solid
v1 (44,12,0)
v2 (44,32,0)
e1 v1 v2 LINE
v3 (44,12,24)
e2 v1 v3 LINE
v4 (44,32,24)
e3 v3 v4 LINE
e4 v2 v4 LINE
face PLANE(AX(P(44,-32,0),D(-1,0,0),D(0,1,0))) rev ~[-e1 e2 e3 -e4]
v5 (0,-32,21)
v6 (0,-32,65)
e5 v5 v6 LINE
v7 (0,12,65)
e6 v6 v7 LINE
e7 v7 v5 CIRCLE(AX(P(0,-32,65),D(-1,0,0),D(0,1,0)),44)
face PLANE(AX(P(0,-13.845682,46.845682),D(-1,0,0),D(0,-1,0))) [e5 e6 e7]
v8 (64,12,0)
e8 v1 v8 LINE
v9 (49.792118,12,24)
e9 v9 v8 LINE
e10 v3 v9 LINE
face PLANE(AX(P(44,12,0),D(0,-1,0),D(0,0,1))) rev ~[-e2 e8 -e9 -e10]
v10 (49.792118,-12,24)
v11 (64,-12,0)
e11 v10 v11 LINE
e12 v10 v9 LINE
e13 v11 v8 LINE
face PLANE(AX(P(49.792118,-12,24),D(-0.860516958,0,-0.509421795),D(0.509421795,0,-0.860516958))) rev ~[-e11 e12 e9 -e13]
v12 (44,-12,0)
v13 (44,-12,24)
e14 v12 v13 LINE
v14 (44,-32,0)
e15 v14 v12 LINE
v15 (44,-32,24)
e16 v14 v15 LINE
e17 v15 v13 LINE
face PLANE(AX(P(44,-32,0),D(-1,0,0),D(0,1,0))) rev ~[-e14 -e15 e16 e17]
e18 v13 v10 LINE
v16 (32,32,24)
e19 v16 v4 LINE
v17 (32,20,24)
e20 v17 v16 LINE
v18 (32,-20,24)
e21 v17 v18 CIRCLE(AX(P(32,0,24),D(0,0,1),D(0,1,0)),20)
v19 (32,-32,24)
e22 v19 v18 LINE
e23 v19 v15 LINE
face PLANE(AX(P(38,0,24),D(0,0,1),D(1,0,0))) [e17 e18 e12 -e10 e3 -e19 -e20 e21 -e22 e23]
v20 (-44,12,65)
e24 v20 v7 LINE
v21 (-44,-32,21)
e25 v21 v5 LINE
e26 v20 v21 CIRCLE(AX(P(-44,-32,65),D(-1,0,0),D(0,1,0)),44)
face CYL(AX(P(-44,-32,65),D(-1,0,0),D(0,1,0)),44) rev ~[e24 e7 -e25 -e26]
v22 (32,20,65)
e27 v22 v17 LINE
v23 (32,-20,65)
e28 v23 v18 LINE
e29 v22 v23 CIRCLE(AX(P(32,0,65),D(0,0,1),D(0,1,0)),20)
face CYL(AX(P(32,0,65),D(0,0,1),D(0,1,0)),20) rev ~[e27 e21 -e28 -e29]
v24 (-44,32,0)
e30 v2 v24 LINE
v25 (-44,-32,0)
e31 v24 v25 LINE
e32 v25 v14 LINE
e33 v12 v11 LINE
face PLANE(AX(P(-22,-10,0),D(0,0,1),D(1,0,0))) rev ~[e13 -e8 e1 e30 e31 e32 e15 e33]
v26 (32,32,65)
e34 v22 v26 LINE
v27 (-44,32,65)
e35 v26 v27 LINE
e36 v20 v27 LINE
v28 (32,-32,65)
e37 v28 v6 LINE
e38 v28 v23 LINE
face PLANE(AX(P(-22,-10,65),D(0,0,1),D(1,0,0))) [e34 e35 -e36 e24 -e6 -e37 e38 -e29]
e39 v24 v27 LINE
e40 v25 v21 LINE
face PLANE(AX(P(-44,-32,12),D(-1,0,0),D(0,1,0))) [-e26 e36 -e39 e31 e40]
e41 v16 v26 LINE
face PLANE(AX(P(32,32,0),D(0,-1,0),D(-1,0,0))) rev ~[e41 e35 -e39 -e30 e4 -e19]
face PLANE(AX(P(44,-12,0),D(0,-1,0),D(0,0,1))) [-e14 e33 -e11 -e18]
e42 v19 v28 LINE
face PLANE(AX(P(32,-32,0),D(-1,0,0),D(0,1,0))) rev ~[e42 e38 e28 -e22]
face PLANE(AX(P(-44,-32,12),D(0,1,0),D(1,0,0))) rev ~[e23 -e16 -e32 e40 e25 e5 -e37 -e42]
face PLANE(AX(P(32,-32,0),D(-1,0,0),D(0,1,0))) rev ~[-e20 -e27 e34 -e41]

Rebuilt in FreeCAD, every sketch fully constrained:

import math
import FreeCAD as App
import Part
import Sketcher
Q = App.Units.Quantity

doc = App.newDocument("Part")
params = doc.addObject("Spreadsheet::Sheet", "Params")
for row, (alias, value) in enumerate([
    ("sketch1_width", "12 mm"),
    ("sketch1_height", "64 mm"),
    ("pad1_length", "24 mm"),
    ("sketch2_width", "76 mm"),
    ("sketch2_width2", "44 mm"),
    ("sketch2_height", "64 mm"),
    ("pad2_length", "65 mm"),
    ("sketch3_width", "24 mm"),
    ("pad3_length", "20 mm"),
    ("sketch4_height", "24 mm"),
    ("pocket1_length", "37.6 mm"),
    ("sketch5_radius", "20 mm"),
    ("pocket2_length", "41 mm"),
    ("sketch6_width", "44 mm"),
    ("pad4_length", "12 mm"),
    ("sketch7_width", "44 mm"),
    ("pad5_length", "53 mm"),
    ("sketch8_radius", "44 mm"),
    ("pocket3_length", "44 mm"),
], start=1):
    params.set(f"A{row}", alias)
    params.set(f"B{row}", "=" + value)
    params.setAlias(f"B{row}", alias)

body = doc.addObject("PartDesign::Body", "Body")

sketch1 = body.newObject("Sketcher::SketchObject", "Sketch")
sketch1.AttachmentSupport = (doc.getObject("XY_Plane"), [""])
sketch1.MapMode = "FlatFace"
sketch1.addGeometry([
    Part.LineSegment(App.Vector(32, 32, 0), App.Vector(32, -32, 0)),
    Part.LineSegment(App.Vector(32, -32, 0), App.Vector(44, -32, 0)),
    Part.LineSegment(App.Vector(44, -32, 0), App.Vector(44, 32, 0)),
    Part.LineSegment(App.Vector(44, 32, 0), App.Vector(32, 32, 0)),
], False)
sketch1.addConstraint([
    Sketcher.Constraint("Coincident", 0, 2, 1, 1),
    Sketcher.Constraint("Coincident", 1, 2, 2, 1),
    Sketcher.Constraint("Coincident", 2, 2, 3, 1),
    Sketcher.Constraint("Coincident", 3, 2, 0, 1),
    Sketcher.Constraint("Vertical", 0),
    Sketcher.Constraint("Horizontal", 1),
    Sketcher.Constraint("Vertical", 2),
    Sketcher.Constraint("Horizontal", 3),
    Sketcher.Constraint("DistanceX", 1, 1, 1, 2, Q("12 mm")),
    Sketcher.Constraint("DistanceY", 0, 2, 0, 1, Q("64 mm")),
    Sketcher.Constraint("DistanceX", -1, 1, 0, 2, Q("32 mm")),
    Sketcher.Constraint("DistanceY", 0, 2, -1, 1, Q("32 mm")),
])
sketch1.setExpression("Constraints[8]", "Params.sketch1_width")
sketch1.setExpression("Constraints[9]", "Params.sketch1_height")
pad1 = body.newObject("PartDesign::Pad", "Pad")
pad1.Profile = sketch1
pad1.setExpression("Length", "Params.pad1_length")

sketch2 = body.newObject("Sketcher::SketchObject", "Sketch001")
sketch2.AttachmentSupport = (doc.getObject("XY_Plane"), [""])
sketch2.MapMode = "FlatFace"
sketch2.addGeometry([
    Part.LineSegment(App.Vector(32, -32, 0), App.Vector(32, 32, 0)),
    Part.LineSegment(App.Vector(32, 32, 0), App.Vector(-44, 32, 0)),
    Part.LineSegment(App.Vector(-44, 32, 0), App.Vector(-44, 12, 0)),
    Part.LineSegment(App.Vector(-44, 12, 0), App.Vector(0, 12, 0)),
    Part.LineSegment(App.Vector(0, 12, 0), App.Vector(0, -32, 0)),
    Part.LineSegment(App.Vector(0, -32, 0), App.Vector(32, -32, 0)),
], False)
sketch2.addConstraint([
    Sketcher.Constraint("Coincident", 0, 2, 1, 1),
    Sketcher.Constraint("Coincident", 1, 2, 2, 1),
    Sketcher.Constraint("Coincident", 2, 2, 3, 1),
    Sketcher.Constraint("Coincident", 3, 2, 4, 1),
    Sketcher.Constraint("Coincident", 4, 2, 5, 1),
    Sketcher.Constraint("Coincident", 5, 2, 0, 1),
    Sketcher.Constraint("Vertical", 0),
    Sketcher.Constraint("Horizontal", 1),
    Sketcher.Constraint("Vertical", 2),
    Sketcher.Constraint("Horizontal", 3),
    Sketcher.Constraint("Vertical", 4),
    Sketcher.Constraint("Horizontal", 5),
    Sketcher.Constraint("PointOnObject", 3, 2, -2),
    Sketcher.Constraint("Equal", 3, 4),
    Sketcher.Constraint("DistanceX", 1, 2, 1, 1, Q("76 mm")),
    Sketcher.Constraint("DistanceX", 3, 1, 3, 2, Q("44 mm")),
    Sketcher.Constraint("DistanceY", 0, 1, 0, 2, Q("64 mm")),
    Sketcher.Constraint("DistanceY", -1, 1, 0, 2, Q("32 mm")),
])
sketch2.setExpression("Constraints[14]", "Params.sketch2_width")
sketch2.setExpression("Constraints[15]", "Params.sketch2_width2")
sketch2.setExpression("Constraints[16]", "Params.sketch2_height")
pad2 = body.newObject("PartDesign::Pad", "Pad001")
pad2.Profile = sketch2
pad2.setExpression("Length", "Params.pad2_length")

sketch3 = body.newObject("Sketcher::SketchObject", "Sketch002")
sketch3.AttachmentSupport = (doc.getObject("YZ_Plane"), [""])
sketch3.MapMode = "FlatFace"
sketch3.AttachmentOffset = App.Placement(App.Vector(0, 0, 44), App.Rotation())
sketch3.addGeometry([
    Part.LineSegment(App.Vector(-12, 24, 0), App.Vector(-12, 0, 0)),
    Part.LineSegment(App.Vector(-12, 0, 0), App.Vector(12, 0, 0)),
    Part.LineSegment(App.Vector(12, 0, 0), App.Vector(12, 24, 0)),
    Part.LineSegment(App.Vector(12, 24, 0), App.Vector(-12, 24, 0)),
], False)
sketch3.addConstraint([
    Sketcher.Constraint("Coincident", 0, 2, 1, 1),
    Sketcher.Constraint("Coincident", 1, 2, 2, 1),
    Sketcher.Constraint("Coincident", 2, 2, 3, 1),
    Sketcher.Constraint("Coincident", 3, 2, 0, 1),
    Sketcher.Constraint("Vertical", 0),
    Sketcher.Constraint("Horizontal", 1),
    Sketcher.Constraint("Vertical", 2),
    Sketcher.Constraint("Horizontal", 3),
    Sketcher.Constraint("Symmetric", 0, 2, 1, 2, -1, 1),
    Sketcher.Constraint("Equal", 3, 0),
    Sketcher.Constraint("DistanceX", 1, 1, 1, 2, Q("24 mm")),
])
sketch3.setExpression("Constraints[10]", "Params.sketch3_width")
pad3 = body.newObject("PartDesign::Pad", "Pad002")
pad3.Profile = sketch3
pad3.setExpression("Length", "Params.pad3_length")

sketch4 = body.newObject("Sketcher::SketchObject", "Sketch003")
sketch4.AttachmentSupport = (doc.getObject("XZ_Plane"), [""])
sketch4.MapMode = "FlatFace"
sketch4.AttachmentOffset = App.Placement(App.Vector(0, 0, 12), App.Rotation())
sketch4.addGeometry([
    Part.LineSegment(App.Vector(64, 24, 0), App.Vector(49.792118, 24, 0)),
    Part.LineSegment(App.Vector(49.792118, 24, 0), App.Vector(64, 0, 0)),
    Part.LineSegment(App.Vector(64, 0, 0), App.Vector(64, 24, 0)),
], False)
sketch4.addConstraint([
    Sketcher.Constraint("Coincident", 0, 2, 1, 1),
    Sketcher.Constraint("Coincident", 1, 2, 2, 1),
    Sketcher.Constraint("Coincident", 2, 2, 0, 1),
    Sketcher.Constraint("Horizontal", 0),
    Sketcher.Constraint("Vertical", 2),
    Sketcher.Constraint("PointOnObject", 1, 2, -1),
    Sketcher.Constraint("DistanceY", 2, 1, 2, 2, Q("24 mm")),
    Sketcher.Constraint("DistanceX", -1, 1, 1, 2, Q("64 mm")),
    Sketcher.Constraint("DistanceX", 0, 2, 0, 1, Q("14.207882 mm")),
])
sketch4.setExpression("Constraints[6]", "Params.sketch4_height")
pocket1 = body.newObject("PartDesign::Pocket", "Pocket")
pocket1.Profile = sketch4
pocket1.setExpression("Length", "Params.pocket1_length")

sketch5 = body.newObject("Sketcher::SketchObject", "Sketch004")
sketch5.AttachmentSupport = (doc.getObject("XY_Plane"), [""])
sketch5.MapMode = "FlatFace"
sketch5.AttachmentOffset = App.Placement(App.Vector(0, 0, 65), App.Rotation())
sketch5.addGeometry([
    Part.ArcOfCircle(Part.Circle(App.Vector(32, 0, 0), App.Vector(0, 0, 1), 20), math.radians(90), math.radians(270)),
    Part.LineSegment(App.Vector(32, -20, 0), App.Vector(32, 20, 0)),
], False)
sketch5.addConstraint([
    Sketcher.Constraint("Coincident", 0, 1, 1, 2),
    Sketcher.Constraint("Coincident", 1, 1, 0, 2),
    Sketcher.Constraint("Vertical", 1),
    Sketcher.Constraint("PointOnObject", 0, 3, -1),
    Sketcher.Constraint("Radius", 0, Q("20 mm")),
    Sketcher.Constraint("DistanceX", -1, 1, 0, 3, Q("32 mm")),
    Sketcher.Constraint("DistanceX", -1, 1, 0, 1, Q("32 mm")),
])
sketch5.setExpression("Constraints[4]", "Params.sketch5_radius")
pocket2 = body.newObject("PartDesign::Pocket", "Pocket001")
pocket2.Profile = sketch5
pocket2.setExpression("Length", "Params.pocket2_length")

sketch6 = body.newObject("Sketcher::SketchObject", "Sketch005")
sketch6.AttachmentSupport = (doc.getObject("XY_Plane"), [""])
sketch6.MapMode = "FlatFace"
sketch6.addGeometry([
    Part.LineSegment(App.Vector(-44, 12, 0), App.Vector(-44, -32, 0)),
    Part.LineSegment(App.Vector(-44, -32, 0), App.Vector(0, -32, 0)),
    Part.LineSegment(App.Vector(0, -32, 0), App.Vector(0, 12, 0)),
    Part.LineSegment(App.Vector(0, 12, 0), App.Vector(-44, 12, 0)),
], False)
sketch6.addConstraint([
    Sketcher.Constraint("Coincident", 0, 2, 1, 1),
    Sketcher.Constraint("Coincident", 1, 2, 2, 1),
    Sketcher.Constraint("Coincident", 2, 2, 3, 1),
    Sketcher.Constraint("Coincident", 3, 2, 0, 1),
    Sketcher.Constraint("Vertical", 0),
    Sketcher.Constraint("Horizontal", 1),
    Sketcher.Constraint("Vertical", 2),
    Sketcher.Constraint("Horizontal", 3),
    Sketcher.Constraint("PointOnObject", 1, 2, -2),
    Sketcher.Constraint("Equal", 3, 0),
    Sketcher.Constraint("DistanceX", 1, 1, 1, 2, Q("44 mm")),
    Sketcher.Constraint("DistanceY", 0, 2, -1, 1, Q("32 mm")),
])
sketch6.setExpression("Constraints[10]", "Params.sketch6_width")
pad4 = body.newObject("PartDesign::Pad", "Pad003")
pad4.Profile = sketch6
pad4.setExpression("Length", "Params.pad4_length")

sketch7 = body.newObject("Sketcher::SketchObject", "Sketch006")
sketch7.AttachmentSupport = (doc.getObject("XY_Plane"), [""])
sketch7.MapMode = "FlatFace"
sketch7.AttachmentOffset = App.Placement(App.Vector(0, 0, 12), App.Rotation())
sketch7.addGeometry([
    Part.LineSegment(App.Vector(-44, 12, 0), App.Vector(-44, -32, 0)),
    Part.LineSegment(App.Vector(-44, -32, 0), App.Vector(0, -32, 0)),
    Part.LineSegment(App.Vector(0, -32, 0), App.Vector(0, 12, 0)),
    Part.LineSegment(App.Vector(0, 12, 0), App.Vector(-44, 12, 0)),
], False)
sketch7.addConstraint([
    Sketcher.Constraint("Coincident", 0, 2, 1, 1),
    Sketcher.Constraint("Coincident", 1, 2, 2, 1),
    Sketcher.Constraint("Coincident", 2, 2, 3, 1),
    Sketcher.Constraint("Coincident", 3, 2, 0, 1),
    Sketcher.Constraint("Vertical", 0),
    Sketcher.Constraint("Horizontal", 1),
    Sketcher.Constraint("Vertical", 2),
    Sketcher.Constraint("Horizontal", 3),
    Sketcher.Constraint("PointOnObject", 1, 2, -2),
    Sketcher.Constraint("Equal", 3, 0),
    Sketcher.Constraint("DistanceX", 1, 1, 1, 2, Q("44 mm")),
    Sketcher.Constraint("DistanceY", 0, 2, -1, 1, Q("32 mm")),
])
sketch7.setExpression("Constraints[10]", "Params.sketch7_width")
pad5 = body.newObject("PartDesign::Pad", "Pad004")
pad5.Profile = sketch7
pad5.setExpression("Length", "Params.pad5_length")

sketch8 = body.newObject("Sketcher::SketchObject", "Sketch007")
sketch8.AttachmentSupport = (doc.getObject("YZ_Plane"), [""])
sketch8.MapMode = "FlatFace"
sketch8.AttachmentOffset = App.Placement(App.Vector(0, 0, -44), App.Rotation())
sketch8.addGeometry([
    Part.LineSegment(App.Vector(-32, 65, 0), App.Vector(12, 65, 0)),
    Part.ArcOfCircle(Part.Circle(App.Vector(-32, 65, 0), App.Vector(0, 0, 1), 44), math.radians(-90), math.radians(0)),
    Part.LineSegment(App.Vector(-32, 21, 0), App.Vector(-32, 65, 0)),
], False)
sketch8.addConstraint([
    Sketcher.Constraint("Coincident", 0, 2, 1, 2),
    Sketcher.Constraint("Coincident", 1, 1, 2, 1),
    Sketcher.Constraint("Coincident", 2, 2, 0, 1),
    Sketcher.Constraint("Horizontal", 0),
    Sketcher.Constraint("Vertical", 2),
    Sketcher.Constraint("Coincident", 2, 2, 1, 3),
    Sketcher.Constraint("Radius", 1, Q("44 mm")),
    Sketcher.Constraint("DistanceX", 1, 3, -1, 1, Q("32 mm")),
    Sketcher.Constraint("DistanceY", -1, 1, 1, 3, Q("65 mm")),
])
sketch8.setExpression("Constraints[6]", "Params.sketch8_radius")
pocket3 = body.newObject("PartDesign::Pocket", "Pocket002")
pocket3.Profile = sketch8
pocket3.setExpression("Length", "Params.pocket3_length")
pocket3.Reversed = True

doc.recompute()
